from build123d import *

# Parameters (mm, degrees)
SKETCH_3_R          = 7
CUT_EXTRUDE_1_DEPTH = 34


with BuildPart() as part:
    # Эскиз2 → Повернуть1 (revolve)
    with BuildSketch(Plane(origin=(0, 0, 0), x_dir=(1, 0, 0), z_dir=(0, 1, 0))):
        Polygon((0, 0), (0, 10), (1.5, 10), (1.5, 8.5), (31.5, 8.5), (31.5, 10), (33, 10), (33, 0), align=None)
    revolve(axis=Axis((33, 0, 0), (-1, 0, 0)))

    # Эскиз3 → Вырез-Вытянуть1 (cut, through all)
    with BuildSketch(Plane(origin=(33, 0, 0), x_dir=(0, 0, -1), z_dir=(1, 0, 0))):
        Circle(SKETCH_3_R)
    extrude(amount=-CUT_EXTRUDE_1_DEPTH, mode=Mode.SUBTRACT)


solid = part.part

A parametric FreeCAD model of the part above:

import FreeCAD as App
import Part
import Sketcher
from FreeCAD import Vector


def add_polygon(sketch, points):
    """Adds a closed chain of lines whose ends are joined by coincident constraints."""
    first, n = sketch.GeometryCount, len(points)
    for a, b in zip(points, points[1:] + points[:1]):
        sketch.addGeometry(Part.LineSegment(App.Vector(*a, 0), App.Vector(*b, 0)), False)
    for i in range(n):
        sketch.addConstraint(Sketcher.Constraint("Coincident", first + i, 2, first + (i + 1) % n, 1))

doc = App.newDocument("Part")
body = doc.addObject("PartDesign::Body", "Body")

# Sketch on XZ plane
sketch1 = doc.addObject("Sketcher::SketchObject", "Sketch")
body.addObject(sketch1)
sketch1.AttachmentSupport = (doc.XZ_Plane, [""])
sketch1.MapMode = "FlatFace"
add_polygon(sketch1, [(0, -10), (0, 0), (33, 0), (33, -10), (31.5, -10), (31.5, -8.5), (1.5, -8.5), (1.5, -10)])  # lines 0-7
sketch1.addConstraint(Sketcher.Constraint("Vertical", 0))
sketch1.addConstraint(Sketcher.Constraint("Horizontal", 1))
sketch1.addConstraint(Sketcher.Constraint("Vertical", 2))
sketch1.addConstraint(Sketcher.Constraint("Horizontal", 3))
sketch1.addConstraint(Sketcher.Constraint("Vertical", 4))
sketch1.addConstraint(Sketcher.Constraint("Horizontal", 5))
sketch1.addConstraint(Sketcher.Constraint("Vertical", 6))
sketch1.addConstraint(Sketcher.Constraint("Horizontal", 7))
sketch1.addConstraint(Sketcher.Constraint("Coincident", 0, 2, -1, 1))
sketch1.addConstraint(Sketcher.Constraint("Horizontal", 3, 2, 6, 2))
sketch1.addConstraint(Sketcher.Constraint("Equal", 3, 7))
sketch1.addConstraint(Sketcher.Constraint("Equal", 7, 4))
sketch1.addConstraint(Sketcher.Constraint("DistanceX", 1, 1, 1, 2, 33.0))
sketch1.addConstraint(Sketcher.Constraint("DistanceX", 5, 2, 5, 1, 30.0))
sketch1.addConstraint(Sketcher.Constraint("DistanceY", 0, 1, 0, 2, 10.0))
revolution = doc.addObject("PartDesign::Revolution", "Revolution")
body.addObject(revolution)
revolution.Profile = sketch1
revolution.ReferenceAxis = (sketch1, ["H_Axis"])
revolution.Angle = 360

# Sketch on YZ plane
sketch2 = doc.addObject("Sketcher::SketchObject", "Sketch001")
body.addObject(sketch2)
sketch2.AttachmentSupport = (doc.YZ_Plane, [""])
sketch2.MapMode = "FlatFace"
sketch2.AttachmentOffset = App.Placement(Vector(0, 0, 33), App.Rotation())
sketch2.addGeometry(Part.Circle(Vector(0, 0, 0), Vector(0, 0, 1), 7), False)
sketch2.addConstraint(Sketcher.Constraint("Coincident", 0, 3, -1, 1))
sketch2.addConstraint(Sketcher.Constraint("Diameter", 0, 14.0))
pocket1 = doc.addObject("PartDesign::Pocket", "Pocket")
body.addObject(pocket1)
pocket1.Profile = sketch2
pocket1.Type = "ThroughAll"

doc.recompute()
